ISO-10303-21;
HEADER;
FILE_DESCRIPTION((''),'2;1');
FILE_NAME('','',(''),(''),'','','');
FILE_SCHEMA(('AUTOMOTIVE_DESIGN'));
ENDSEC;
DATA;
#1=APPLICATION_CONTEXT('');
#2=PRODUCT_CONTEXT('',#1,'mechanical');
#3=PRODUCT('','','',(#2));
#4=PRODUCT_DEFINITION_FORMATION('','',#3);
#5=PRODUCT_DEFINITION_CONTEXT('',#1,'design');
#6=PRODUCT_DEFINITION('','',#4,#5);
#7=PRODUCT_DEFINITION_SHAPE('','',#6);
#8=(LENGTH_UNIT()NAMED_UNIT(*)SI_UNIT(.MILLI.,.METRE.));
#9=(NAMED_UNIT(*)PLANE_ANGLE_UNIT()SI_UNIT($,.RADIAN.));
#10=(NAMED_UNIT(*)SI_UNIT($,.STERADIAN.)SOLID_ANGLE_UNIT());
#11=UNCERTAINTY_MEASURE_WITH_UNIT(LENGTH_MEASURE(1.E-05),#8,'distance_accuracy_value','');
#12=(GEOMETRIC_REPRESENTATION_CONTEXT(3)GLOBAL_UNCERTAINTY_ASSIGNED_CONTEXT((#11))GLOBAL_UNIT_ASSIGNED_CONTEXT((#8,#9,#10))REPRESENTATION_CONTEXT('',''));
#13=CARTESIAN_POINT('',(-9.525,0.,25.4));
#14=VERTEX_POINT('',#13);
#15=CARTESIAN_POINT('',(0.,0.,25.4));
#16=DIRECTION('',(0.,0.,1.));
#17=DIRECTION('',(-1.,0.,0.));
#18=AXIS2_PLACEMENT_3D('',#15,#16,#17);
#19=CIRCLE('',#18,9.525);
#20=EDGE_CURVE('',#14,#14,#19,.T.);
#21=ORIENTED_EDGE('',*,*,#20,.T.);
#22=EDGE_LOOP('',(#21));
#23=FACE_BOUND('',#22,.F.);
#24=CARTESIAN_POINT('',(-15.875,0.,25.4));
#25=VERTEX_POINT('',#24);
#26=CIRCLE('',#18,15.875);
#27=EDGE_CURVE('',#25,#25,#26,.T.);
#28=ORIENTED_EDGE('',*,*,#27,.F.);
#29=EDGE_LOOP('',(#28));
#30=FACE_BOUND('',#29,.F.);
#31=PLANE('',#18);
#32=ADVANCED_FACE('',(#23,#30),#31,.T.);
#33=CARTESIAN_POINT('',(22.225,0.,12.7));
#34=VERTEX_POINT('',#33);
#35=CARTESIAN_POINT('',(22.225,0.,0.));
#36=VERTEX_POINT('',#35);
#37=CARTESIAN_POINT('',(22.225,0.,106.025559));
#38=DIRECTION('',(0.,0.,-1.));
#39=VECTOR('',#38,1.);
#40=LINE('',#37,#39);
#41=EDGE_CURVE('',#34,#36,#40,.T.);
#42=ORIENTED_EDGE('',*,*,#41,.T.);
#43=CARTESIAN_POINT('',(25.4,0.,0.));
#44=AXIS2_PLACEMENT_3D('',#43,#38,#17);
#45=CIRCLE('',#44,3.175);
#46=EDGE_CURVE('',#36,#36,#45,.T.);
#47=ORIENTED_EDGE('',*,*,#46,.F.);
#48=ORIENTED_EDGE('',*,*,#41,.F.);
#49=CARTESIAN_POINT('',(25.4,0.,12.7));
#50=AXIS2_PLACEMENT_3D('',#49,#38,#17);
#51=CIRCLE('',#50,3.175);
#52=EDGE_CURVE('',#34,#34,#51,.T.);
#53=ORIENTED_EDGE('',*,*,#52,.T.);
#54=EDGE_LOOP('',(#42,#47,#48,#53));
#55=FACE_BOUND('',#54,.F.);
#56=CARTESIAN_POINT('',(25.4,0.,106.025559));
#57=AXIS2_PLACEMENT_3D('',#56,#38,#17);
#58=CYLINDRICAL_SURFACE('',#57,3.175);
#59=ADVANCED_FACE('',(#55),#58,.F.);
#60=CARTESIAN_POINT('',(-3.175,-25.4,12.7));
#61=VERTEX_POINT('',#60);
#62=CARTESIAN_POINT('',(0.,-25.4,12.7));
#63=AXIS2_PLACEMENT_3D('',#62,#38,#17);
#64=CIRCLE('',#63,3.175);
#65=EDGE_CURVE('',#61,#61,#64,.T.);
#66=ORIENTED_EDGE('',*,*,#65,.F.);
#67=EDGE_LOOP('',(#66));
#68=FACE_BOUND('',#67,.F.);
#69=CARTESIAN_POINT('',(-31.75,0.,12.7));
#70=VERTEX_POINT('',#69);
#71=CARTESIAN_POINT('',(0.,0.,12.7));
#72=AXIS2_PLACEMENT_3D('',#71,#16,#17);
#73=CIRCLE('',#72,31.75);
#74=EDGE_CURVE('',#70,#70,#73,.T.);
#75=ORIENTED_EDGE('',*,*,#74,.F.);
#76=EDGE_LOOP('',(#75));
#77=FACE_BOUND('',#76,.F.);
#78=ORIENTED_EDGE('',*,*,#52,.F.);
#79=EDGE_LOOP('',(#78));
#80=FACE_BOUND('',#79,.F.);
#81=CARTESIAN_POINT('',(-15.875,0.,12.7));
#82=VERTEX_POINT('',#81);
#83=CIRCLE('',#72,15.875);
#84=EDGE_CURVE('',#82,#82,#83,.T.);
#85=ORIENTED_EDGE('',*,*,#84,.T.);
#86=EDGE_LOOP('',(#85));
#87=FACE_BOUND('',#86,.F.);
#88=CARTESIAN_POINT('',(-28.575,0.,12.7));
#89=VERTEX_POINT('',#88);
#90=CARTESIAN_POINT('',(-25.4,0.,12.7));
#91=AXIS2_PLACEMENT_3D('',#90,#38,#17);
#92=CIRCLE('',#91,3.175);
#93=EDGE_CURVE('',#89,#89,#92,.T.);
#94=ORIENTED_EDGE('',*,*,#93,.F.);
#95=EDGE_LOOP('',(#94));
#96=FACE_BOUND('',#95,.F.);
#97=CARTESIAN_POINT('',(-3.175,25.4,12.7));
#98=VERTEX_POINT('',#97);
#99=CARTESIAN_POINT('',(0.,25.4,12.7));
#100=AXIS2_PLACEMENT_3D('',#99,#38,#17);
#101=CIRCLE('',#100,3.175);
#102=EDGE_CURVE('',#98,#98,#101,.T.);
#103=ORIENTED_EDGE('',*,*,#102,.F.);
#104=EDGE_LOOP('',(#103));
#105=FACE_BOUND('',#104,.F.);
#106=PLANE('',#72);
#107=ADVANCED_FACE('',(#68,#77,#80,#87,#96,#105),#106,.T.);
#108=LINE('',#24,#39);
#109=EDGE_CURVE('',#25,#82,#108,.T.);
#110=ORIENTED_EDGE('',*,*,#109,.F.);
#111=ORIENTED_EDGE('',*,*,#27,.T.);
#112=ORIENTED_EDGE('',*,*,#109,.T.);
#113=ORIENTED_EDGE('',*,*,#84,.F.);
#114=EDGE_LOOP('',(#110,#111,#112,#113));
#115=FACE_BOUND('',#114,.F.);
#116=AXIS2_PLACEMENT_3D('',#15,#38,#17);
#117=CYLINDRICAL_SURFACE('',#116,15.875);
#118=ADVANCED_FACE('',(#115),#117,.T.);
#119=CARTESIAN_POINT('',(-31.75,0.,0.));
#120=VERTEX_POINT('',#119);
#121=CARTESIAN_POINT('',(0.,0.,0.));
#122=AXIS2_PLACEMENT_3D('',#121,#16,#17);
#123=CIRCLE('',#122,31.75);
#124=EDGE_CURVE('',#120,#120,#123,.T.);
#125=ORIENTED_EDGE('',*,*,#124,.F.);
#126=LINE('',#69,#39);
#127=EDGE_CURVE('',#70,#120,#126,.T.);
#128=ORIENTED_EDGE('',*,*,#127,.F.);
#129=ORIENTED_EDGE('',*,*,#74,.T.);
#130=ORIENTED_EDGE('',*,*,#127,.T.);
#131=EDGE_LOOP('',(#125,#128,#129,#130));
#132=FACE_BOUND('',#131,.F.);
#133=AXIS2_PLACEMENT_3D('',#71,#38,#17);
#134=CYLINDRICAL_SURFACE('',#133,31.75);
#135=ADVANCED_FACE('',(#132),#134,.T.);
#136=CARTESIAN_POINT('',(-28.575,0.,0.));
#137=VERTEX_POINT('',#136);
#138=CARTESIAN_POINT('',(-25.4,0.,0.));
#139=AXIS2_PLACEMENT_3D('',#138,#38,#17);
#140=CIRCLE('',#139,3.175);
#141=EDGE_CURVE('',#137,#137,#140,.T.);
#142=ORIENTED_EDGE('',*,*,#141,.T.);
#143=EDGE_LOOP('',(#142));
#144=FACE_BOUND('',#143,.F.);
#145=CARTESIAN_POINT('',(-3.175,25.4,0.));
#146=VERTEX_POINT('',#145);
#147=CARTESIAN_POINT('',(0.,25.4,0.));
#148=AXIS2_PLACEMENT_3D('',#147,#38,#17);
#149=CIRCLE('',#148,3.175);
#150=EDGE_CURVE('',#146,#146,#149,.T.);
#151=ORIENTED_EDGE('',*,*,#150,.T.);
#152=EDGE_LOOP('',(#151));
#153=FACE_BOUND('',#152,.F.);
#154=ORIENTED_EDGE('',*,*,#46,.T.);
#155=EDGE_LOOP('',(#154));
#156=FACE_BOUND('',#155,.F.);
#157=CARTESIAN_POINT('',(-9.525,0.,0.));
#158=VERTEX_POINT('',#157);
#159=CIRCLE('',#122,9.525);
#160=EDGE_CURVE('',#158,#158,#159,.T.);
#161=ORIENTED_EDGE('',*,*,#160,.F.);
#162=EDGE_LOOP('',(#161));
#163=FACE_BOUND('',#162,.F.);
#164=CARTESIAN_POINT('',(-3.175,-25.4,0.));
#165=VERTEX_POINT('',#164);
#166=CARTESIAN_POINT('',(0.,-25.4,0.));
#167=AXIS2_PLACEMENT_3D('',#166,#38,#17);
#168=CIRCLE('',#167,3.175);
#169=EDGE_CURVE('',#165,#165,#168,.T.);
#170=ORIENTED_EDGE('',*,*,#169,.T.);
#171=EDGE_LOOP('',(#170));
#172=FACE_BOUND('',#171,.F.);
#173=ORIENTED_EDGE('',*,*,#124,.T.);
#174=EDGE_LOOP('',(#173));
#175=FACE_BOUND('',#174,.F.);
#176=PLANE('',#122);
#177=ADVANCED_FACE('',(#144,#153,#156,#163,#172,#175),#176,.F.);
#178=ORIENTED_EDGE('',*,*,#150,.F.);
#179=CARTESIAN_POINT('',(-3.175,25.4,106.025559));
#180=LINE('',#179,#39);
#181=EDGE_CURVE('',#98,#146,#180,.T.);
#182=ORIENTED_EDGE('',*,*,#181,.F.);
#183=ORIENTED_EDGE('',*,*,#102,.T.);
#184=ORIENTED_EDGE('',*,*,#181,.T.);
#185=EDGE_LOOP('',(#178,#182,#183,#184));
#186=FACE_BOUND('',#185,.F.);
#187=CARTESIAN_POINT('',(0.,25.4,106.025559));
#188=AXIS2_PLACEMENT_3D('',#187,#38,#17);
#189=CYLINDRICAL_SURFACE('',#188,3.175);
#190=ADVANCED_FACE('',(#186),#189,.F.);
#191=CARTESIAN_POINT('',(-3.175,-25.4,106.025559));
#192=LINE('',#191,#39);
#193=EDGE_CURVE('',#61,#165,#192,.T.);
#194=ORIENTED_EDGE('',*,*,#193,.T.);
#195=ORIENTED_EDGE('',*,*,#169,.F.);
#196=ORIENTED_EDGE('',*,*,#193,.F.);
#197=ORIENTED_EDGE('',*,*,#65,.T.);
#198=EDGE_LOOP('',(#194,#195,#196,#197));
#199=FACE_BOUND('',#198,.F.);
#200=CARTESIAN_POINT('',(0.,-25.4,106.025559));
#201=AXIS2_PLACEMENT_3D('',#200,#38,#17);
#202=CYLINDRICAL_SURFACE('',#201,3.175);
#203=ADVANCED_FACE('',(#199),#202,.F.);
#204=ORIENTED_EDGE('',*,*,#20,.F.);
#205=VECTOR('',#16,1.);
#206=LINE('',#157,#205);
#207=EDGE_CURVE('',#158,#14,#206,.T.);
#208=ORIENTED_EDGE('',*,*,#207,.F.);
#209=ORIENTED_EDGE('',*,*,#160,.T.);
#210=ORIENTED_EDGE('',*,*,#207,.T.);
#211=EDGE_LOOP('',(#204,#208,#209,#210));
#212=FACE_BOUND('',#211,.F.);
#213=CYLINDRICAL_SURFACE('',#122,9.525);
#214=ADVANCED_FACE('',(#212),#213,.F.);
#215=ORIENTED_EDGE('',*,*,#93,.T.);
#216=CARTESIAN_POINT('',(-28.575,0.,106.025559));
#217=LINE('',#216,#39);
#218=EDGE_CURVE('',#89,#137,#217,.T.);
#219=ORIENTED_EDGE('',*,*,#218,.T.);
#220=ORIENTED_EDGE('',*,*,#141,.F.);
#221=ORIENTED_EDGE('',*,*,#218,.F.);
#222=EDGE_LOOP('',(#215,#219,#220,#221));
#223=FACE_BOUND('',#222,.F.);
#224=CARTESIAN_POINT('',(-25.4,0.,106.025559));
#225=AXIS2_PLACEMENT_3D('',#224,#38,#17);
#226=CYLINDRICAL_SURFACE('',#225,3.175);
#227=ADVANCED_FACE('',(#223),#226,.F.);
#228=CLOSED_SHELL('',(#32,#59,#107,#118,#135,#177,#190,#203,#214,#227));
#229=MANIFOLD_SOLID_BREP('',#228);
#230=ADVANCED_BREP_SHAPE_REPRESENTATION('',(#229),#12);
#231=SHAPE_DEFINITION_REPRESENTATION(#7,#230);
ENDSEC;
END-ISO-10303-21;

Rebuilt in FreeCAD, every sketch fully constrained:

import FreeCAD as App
import Part
import Sketcher

V = App.Vector
Q = App.Units.Quantity


def add_polygon(sketch, points):
    """Adds a closed chain of lines whose ends are joined by coincident constraints."""
    first, n = sketch.GeometryCount, len(points)
    for a, b in zip(points, points[1:] + points[:1]):
        sketch.addGeometry(Part.LineSegment(App.Vector(*a, 0), App.Vector(*b, 0)), False)
    for i in range(n):
        sketch.addConstraint(Sketcher.Constraint("Coincident", first + i, 2, first + (i + 1) % n, 1))

doc = App.newDocument("Part")
body = doc.addObject("PartDesign::Body", "Body")

sketch1 = body.newObject("Sketcher::SketchObject", "Sketch")
sketch1.AttachmentSupport = (doc.getObject("XZ_Plane"), [""])
sketch1.MapMode = "FlatFace"
add_polygon(sketch1, [(-32, 0), (-10, 0), (-10, 25), (-16, 25), (-16, 13), (-32, 13)])
sketch1.addConstraint([
    Sketcher.Constraint("Horizontal", 0),
    Sketcher.Constraint("Vertical", 1),
    Sketcher.Constraint("Horizontal", 2),
    Sketcher.Constraint("Vertical", 3),
    Sketcher.Constraint("Horizontal", 4),
    Sketcher.Constraint("Vertical", 5),
    Sketcher.Constraint("PointOnObject", 0, 2, -1),
    Sketcher.Constraint("Equal", 3, 5),
    Sketcher.Constraint("DistanceY", 1, 1, 1, 2, Q("1 in")),
    Sketcher.Constraint("DistanceX", 2, 2, 2, 1, Q("0.25 in")),
    Sketcher.Constraint("DistanceX", 0, 1, 0, 2, Q("0.875 in")),
    Sketcher.Constraint("DistanceX", 4, 2, -1, 1, Q("1.25 in")),
])
revolution = body.newObject("PartDesign::Revolution", "Revolution")
revolution.Profile = sketch1
revolution.ReferenceAxis = (sketch1, ["V_Axis"])
revolution.Angle = 360

sketch2 = body.newObject("Sketcher::SketchObject", "Sketch001")
sketch2.AttachmentSupport = (doc.getObject("XY_Plane"), [""])
sketch2.MapMode = "FlatFace"
sketch2.AttachmentOffset = App.Placement(V(0, 0, 0.5 * 25.4), App.Rotation())
sketch2.addGeometry([
    Part.Circle(V(0, 25.4, 0), V(0, 0, 1), 3.2),
    Part.Circle(V(-25.4, 0, 0), V(0, 0, 1), 3.2),
    Part.Circle(V(0, -25.4, 0), V(0, 0, 1), 3.2),
    Part.Circle(V(25.4, 0, 0), V(0, 0, 1), 3.2),
], False)
sketch2.addConstraint([
    Sketcher.Constraint("Equal", 0, 1),
    Sketcher.Constraint("Equal", 1, 2),
    Sketcher.Constraint("Equal", 2, 3),
    Sketcher.Constraint("Symmetric", 0, 3, 2, 3, -1, 1),
    Sketcher.Constraint("Symmetric", 1, 3, 3, 3, -1, 1),
    Sketcher.Constraint("PointOnObject", 0, 3, -2),
    Sketcher.Constraint("PointOnObject", 1, 3, -1),
    Sketcher.Constraint("Diameter", 0, Q("0.25 in")),
    Sketcher.Constraint("DistanceY", -1, 1, 0, 3, Q("1 in")),
    Sketcher.Constraint("DistanceX", 1, 3, -1, 1, Q("1 in")),
])
doc.recompute()
hole = body.newObject("PartDesign::Hole", "Hole")
hole.Profile = sketch2
hole.ThreadType = "None"
hole.Diameter = Q("0.25 in")
hole.DepthType = "ThroughAll"

doc.recompute()
